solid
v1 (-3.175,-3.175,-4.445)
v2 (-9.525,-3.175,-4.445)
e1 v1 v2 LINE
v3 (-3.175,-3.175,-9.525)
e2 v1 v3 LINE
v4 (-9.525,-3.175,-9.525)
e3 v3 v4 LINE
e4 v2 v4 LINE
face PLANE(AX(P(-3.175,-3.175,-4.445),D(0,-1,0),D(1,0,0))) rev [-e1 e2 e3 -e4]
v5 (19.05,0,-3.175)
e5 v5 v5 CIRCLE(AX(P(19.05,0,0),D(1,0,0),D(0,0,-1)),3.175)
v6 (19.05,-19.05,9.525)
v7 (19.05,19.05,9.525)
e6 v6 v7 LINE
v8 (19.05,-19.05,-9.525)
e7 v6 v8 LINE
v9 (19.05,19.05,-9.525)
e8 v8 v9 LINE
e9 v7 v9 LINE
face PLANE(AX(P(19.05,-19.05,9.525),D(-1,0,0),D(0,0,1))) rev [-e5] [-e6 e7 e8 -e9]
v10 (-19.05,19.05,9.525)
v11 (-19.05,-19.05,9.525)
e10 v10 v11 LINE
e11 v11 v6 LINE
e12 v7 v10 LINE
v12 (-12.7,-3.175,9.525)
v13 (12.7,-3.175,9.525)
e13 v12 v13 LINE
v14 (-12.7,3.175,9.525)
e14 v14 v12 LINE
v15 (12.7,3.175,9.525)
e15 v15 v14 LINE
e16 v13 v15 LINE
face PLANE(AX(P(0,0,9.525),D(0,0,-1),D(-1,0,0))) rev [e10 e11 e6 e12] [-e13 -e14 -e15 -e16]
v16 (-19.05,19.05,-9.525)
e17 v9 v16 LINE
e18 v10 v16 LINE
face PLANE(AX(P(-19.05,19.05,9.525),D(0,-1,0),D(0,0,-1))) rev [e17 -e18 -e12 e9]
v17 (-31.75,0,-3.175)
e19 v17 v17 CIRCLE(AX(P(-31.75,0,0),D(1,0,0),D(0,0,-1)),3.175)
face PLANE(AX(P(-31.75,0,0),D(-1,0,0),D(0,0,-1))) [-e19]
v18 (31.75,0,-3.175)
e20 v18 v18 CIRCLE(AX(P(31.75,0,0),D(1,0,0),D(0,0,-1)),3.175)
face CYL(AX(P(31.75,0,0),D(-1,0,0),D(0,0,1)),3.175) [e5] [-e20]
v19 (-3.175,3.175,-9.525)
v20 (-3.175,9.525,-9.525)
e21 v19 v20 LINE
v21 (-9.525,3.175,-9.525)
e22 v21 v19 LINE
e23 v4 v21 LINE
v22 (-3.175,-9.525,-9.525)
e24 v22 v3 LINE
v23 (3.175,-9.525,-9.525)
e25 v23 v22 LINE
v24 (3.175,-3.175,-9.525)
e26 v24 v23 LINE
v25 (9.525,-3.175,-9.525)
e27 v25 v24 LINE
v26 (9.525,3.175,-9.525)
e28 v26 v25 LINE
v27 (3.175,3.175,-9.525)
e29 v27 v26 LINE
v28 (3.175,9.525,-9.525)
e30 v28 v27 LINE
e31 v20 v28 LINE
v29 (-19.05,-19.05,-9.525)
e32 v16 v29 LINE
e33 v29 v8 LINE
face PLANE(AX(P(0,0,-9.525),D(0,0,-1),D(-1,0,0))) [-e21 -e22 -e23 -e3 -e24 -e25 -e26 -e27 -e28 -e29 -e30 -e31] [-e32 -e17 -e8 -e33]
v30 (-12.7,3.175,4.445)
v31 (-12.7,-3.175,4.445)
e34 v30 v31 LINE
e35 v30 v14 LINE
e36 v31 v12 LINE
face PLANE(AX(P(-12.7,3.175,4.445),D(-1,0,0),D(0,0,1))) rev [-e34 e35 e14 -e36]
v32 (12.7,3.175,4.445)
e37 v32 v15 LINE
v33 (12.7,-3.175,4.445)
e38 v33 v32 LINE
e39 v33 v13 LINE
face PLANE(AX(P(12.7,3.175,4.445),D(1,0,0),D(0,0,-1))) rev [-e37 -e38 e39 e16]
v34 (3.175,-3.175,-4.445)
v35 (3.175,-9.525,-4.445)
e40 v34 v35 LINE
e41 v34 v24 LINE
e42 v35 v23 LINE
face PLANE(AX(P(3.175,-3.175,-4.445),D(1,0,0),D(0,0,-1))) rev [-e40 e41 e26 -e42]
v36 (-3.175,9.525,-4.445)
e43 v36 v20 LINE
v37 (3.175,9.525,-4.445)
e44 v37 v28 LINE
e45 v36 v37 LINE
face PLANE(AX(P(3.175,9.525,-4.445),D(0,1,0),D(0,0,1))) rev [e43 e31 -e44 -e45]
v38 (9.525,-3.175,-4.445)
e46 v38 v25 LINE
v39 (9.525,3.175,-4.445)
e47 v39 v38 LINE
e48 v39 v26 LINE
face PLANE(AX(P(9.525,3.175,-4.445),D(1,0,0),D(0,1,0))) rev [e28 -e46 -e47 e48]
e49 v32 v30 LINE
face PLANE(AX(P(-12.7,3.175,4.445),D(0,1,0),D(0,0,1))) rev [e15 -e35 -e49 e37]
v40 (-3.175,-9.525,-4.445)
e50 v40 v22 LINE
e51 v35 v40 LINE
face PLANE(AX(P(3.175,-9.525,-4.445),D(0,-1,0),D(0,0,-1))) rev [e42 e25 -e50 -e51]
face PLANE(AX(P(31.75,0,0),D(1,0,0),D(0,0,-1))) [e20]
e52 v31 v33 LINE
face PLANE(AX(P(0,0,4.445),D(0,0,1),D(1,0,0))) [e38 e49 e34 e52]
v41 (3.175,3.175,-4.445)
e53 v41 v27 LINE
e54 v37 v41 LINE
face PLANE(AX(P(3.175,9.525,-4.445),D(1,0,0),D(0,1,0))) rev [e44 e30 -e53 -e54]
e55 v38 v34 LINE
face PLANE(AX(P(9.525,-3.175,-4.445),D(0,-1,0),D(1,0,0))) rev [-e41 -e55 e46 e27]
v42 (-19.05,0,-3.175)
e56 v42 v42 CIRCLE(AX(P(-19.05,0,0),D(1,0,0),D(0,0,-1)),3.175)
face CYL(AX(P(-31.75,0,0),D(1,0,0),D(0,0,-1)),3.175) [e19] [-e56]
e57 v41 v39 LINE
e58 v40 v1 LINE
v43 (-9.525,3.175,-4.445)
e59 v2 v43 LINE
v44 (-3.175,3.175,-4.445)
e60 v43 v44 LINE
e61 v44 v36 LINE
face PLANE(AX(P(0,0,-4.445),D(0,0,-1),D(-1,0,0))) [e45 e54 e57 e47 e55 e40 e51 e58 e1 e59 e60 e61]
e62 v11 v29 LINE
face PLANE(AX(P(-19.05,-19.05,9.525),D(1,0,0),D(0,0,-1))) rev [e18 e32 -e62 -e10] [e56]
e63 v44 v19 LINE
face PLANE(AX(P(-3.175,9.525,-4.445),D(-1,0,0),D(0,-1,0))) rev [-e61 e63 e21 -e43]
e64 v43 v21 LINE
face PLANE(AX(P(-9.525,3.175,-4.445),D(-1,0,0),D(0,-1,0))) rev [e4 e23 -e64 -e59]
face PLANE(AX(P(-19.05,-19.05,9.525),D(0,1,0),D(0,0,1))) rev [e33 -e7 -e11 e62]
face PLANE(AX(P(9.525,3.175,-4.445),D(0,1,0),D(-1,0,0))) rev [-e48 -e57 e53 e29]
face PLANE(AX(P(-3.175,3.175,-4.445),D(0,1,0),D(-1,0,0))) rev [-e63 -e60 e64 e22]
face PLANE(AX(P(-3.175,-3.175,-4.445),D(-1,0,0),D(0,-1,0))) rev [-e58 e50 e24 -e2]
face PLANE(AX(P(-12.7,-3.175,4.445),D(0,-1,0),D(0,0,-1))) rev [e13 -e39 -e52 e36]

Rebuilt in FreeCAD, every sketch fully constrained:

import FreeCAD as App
import Part
import Sketcher
Q = App.Units.Quantity


def add_polygon(sketch, points):
    """Adds a closed chain of lines whose ends are joined by coincident constraints."""
    first, n = sketch.GeometryCount, len(points)
    for a, b in zip(points, points[1:] + points[:1]):
        sketch.addGeometry(Part.LineSegment(App.Vector(*a, 0), App.Vector(*b, 0)), False)
    for i in range(n):
        sketch.addConstraint(Sketcher.Constraint("Coincident", first + i, 2, first + (i + 1) % n, 1))

doc = App.newDocument("Part")
body = doc.addObject("PartDesign::Body", "Body")

sketch1 = body.newObject("Sketcher::SketchObject", "Sketch")
sketch1.AttachmentSupport = (doc.getObject("XY_Plane"), [""])
sketch1.MapMode = "FlatFace"
add_polygon(sketch1, [(-19.05, 19.05), (-19.05, -19.05), (19.05, -19.05), (19.05, 19.05)])
sketch1.addConstraint(Sketcher.Constraint("Vertical", 0))
sketch1.addConstraint(Sketcher.Constraint("Horizontal", 1))
sketch1.addConstraint(Sketcher.Constraint("Vertical", 2))
sketch1.addConstraint(Sketcher.Constraint("Horizontal", 3))
sketch1.addConstraint(Sketcher.Constraint("Symmetric", 0, 2, 2, 2, -1, 1))
sketch1.addConstraint(Sketcher.Constraint("Equal", 3, 0))
sketch1.addConstraint(Sketcher.Constraint("DistanceX", 1, 1, 1, 2, Q("1.5 in")))
pad1 = body.newObject("PartDesign::Pad", "Pad")
pad1.Profile = sketch1
pad1.Length = Q("0.75 in")
pad1.Midplane = True

sketch2 = body.newObject("Sketcher::SketchObject", "Sketch001")
sketch2.AttachmentSupport = (doc.getObject("XY_Plane"), [""])
sketch2.MapMode = "FlatFace"
sketch2.AttachmentOffset = App.Placement(App.Vector(0, 0, 0.375 * 25.4), App.Rotation())
add_polygon(sketch2, [(-12.7, 3.175), (-12.7, -3.175), (12.7, -3.175), (12.7, 3.175)])
sketch2.addConstraint(Sketcher.Constraint("Vertical", 0))
sketch2.addConstraint(Sketcher.Constraint("Horizontal", 1))
sketch2.addConstraint(Sketcher.Constraint("Vertical", 2))
sketch2.addConstraint(Sketcher.Constraint("Horizontal", 3))
sketch2.addConstraint(Sketcher.Constraint("Symmetric", 0, 2, 2, 2, -1, 1))
sketch2.addConstraint(Sketcher.Constraint("DistanceX", 1, 1, 1, 2, Q("1 in")))
sketch2.addConstraint(Sketcher.Constraint("DistanceY", 0, 2, 0, 1, Q("0.25 in")))
pocket1 = body.newObject("PartDesign::Pocket", "Pocket")
pocket1.Profile = sketch2
pocket1.Length = Q("0.2 in")

sketch3 = body.newObject("Sketcher::SketchObject", "Sketch002")
sketch3.AttachmentSupport = (doc.getObject("XY_Plane"), [""])
sketch3.MapMode = "FlatFace"
sketch3.AttachmentOffset = App.Placement(App.Vector(0, 0, -0.375 * 25.4), App.Rotation())
add_polygon(sketch3, [(-9.525, 3.175), (-3.175, 3.175), (-3.175, 9.525), (3.175, 9.525), (3.175, 3.175), (9.525, 3.175), (9.525, -3.175), (3.175, -3.175), (3.175, -9.525), (-3.175, -9.525), (-3.175, -3.175), (-9.525, -3.175)])
sketch3.addConstraint(Sketcher.Constraint("Horizontal", 0))
sketch3.addConstraint(Sketcher.Constraint("Vertical", 1))
sketch3.addConstraint(Sketcher.Constraint("Horizontal", 2))
sketch3.addConstraint(Sketcher.Constraint("Vertical", 3))
sketch3.addConstraint(Sketcher.Constraint("Horizontal", 4))
sketch3.addConstraint(Sketcher.Constraint("Vertical", 5))
sketch3.addConstraint(Sketcher.Constraint("Horizontal", 6))
sketch3.addConstraint(Sketcher.Constraint("Vertical", 7))
sketch3.addConstraint(Sketcher.Constraint("Horizontal", 8))
sketch3.addConstraint(Sketcher.Constraint("Vertical", 9))
sketch3.addConstraint(Sketcher.Constraint("Horizontal", 10))
sketch3.addConstraint(Sketcher.Constraint("Vertical", 11))
sketch3.addConstraint(Sketcher.Constraint("Symmetric", 0, 2, 6, 2, -1, 1))
sketch3.addConstraint(Sketcher.Constraint("Symmetric", 2, 2, 8, 2, -1, 1))
sketch3.addConstraint(Sketcher.Constraint("Symmetric", 4, 2, 10, 2, -1, 1))
sketch3.addConstraint(Sketcher.Constraint("Symmetric", 0, 2, 3, 2, -2))
sketch3.addConstraint(Sketcher.Constraint("Equal", 0, 2))
sketch3.addConstraint(Sketcher.Constraint("Equal", 10, 1))
sketch3.addConstraint(Sketcher.Constraint("Equal", 3, 5))
sketch3.addConstraint(Sketcher.Constraint("DistanceX", 0, 1, 0, 2, Q("0.25 in")))
pocket2 = body.newObject("PartDesign::Pocket", "Pocket001")
pocket2.Profile = sketch3
pocket2.Length = Q("0.2 in")
pocket2.Reversed = True

sketch4 = body.newObject("Sketcher::SketchObject", "Sketch003")
sketch4.AttachmentSupport = (doc.getObject("YZ_Plane"), [""])
sketch4.MapMode = "FlatFace"
sketch4.AttachmentOffset = App.Placement(App.Vector(0, 0, 0.75 * 25.4), App.Rotation())
sketch4.addGeometry(Part.Circle(App.Vector(0, 0, 0), App.Vector(0, 0, 1), 3.175), False)
sketch4.addConstraint(Sketcher.Constraint("Coincident", 0, 3, -1, 1))
sketch4.addConstraint(Sketcher.Constraint("Diameter", 0, Q("0.25 in")))
pad2 = body.newObject("PartDesign::Pad", "Pad001")
pad2.Profile = sketch4
pad2.Length = Q("0.5 in")
doc.recompute()

mirrored = body.newObject("PartDesign::Mirrored", "Mirrored")
mirrored.Originals = [pad2]
mirrored.MirrorPlane = (doc.getObject("YZ_Plane"), [""])
body.Tip = mirrored

doc.recompute()
